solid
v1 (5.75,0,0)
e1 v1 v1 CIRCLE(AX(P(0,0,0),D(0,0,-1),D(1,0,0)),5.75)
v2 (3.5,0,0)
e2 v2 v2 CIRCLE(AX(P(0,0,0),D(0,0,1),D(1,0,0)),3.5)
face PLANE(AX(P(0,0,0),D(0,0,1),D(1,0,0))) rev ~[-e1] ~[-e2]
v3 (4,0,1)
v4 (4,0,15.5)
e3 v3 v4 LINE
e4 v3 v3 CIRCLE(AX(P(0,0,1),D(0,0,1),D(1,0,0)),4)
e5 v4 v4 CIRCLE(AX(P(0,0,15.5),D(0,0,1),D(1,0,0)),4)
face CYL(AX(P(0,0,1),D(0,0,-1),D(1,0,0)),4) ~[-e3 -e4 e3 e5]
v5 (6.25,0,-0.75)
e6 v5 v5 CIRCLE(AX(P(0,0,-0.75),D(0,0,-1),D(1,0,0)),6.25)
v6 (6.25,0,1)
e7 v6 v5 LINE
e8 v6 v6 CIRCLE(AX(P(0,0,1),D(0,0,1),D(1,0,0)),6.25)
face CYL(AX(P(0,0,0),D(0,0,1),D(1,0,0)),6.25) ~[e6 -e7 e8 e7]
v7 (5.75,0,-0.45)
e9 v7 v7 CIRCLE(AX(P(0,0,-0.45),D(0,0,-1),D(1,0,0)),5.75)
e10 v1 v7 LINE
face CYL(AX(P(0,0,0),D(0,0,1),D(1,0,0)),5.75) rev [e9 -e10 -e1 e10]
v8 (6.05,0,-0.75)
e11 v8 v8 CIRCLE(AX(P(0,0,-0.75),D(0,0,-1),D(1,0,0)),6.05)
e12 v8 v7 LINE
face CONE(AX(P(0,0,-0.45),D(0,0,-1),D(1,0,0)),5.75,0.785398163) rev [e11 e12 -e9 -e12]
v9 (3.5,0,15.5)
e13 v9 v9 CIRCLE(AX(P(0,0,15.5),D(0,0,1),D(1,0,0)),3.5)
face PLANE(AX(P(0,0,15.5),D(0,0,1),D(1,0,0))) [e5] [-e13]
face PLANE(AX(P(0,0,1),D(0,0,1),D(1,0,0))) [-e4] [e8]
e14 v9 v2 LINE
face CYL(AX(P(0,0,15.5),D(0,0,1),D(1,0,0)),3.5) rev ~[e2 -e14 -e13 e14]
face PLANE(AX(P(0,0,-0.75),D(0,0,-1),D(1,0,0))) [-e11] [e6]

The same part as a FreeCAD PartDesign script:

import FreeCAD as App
import Part
import Sketcher

V = App.Vector
Q = App.Units.Quantity


def edges_at(feature, points):
    """Names of the edges that pass closest to the given points."""
    edges = feature.Shape.Edges
    near = lambda p: min(range(len(edges)), key=lambda i: edges[i].distToShape(Part.Vertex(*p))[0])
    return sorted({f"Edge{near(p) + 1}" for p in points})

doc = App.newDocument("Part")
body = doc.addObject("PartDesign::Body", "Body")

# Sketch on XY plane
sketch1 = doc.addObject("Sketcher::SketchObject", "Sketch")
body.addObject(sketch1)
sketch1.AttachmentSupport = (doc.XY_Plane, [""])
sketch1.MapMode = "FlatFace"
sketch1.addGeometry(Part.Circle(V(0, 0, 0), V(0, 0, 1), 6), False)
sketch1.addConstraint([
    Sketcher.Constraint("Coincident", 0, 3, -1, 1),
    Sketcher.Constraint("Diameter", 0, Q("12.5 mm")),
])
pad1 = doc.addObject("PartDesign::Pad", "Pad")
body.addObject(pad1)
pad1.Profile = sketch1
pad1.Length = 1

# Sketch on XY plane
sketch2 = doc.addObject("Sketcher::SketchObject", "Sketch001")
body.addObject(sketch2)
sketch2.AttachmentSupport = (doc.XY_Plane, [""])
sketch2.MapMode = "FlatFace"
sketch2.addGeometry([
    Part.Circle(V(0, 0, 0), V(0, 0, 1), 6),
    Part.Circle(V(0, 0, 0), V(0, 0, 1), 6),
], False)
sketch2.addConstraint([
    Sketcher.Constraint("Coincident", 0, 3, -1, 1),
    Sketcher.Constraint("Coincident", 1, 3, -1, 1),
    Sketcher.Constraint("Diameter", 0, Q("12.5 mm")),
    Sketcher.Constraint("Diameter", 1, Q("11.5 mm")),
])
pad2 = doc.addObject("PartDesign::Pad", "Pad001")
body.addObject(pad2)
pad2.Profile = sketch2
pad2.Length = 0.75
pad2.Reversed = True

# Sketch on XY plane
sketch3 = doc.addObject("Sketcher::SketchObject", "Sketch002")
body.addObject(sketch3)
sketch3.AttachmentSupport = (doc.XY_Plane, [""])
sketch3.MapMode = "FlatFace"
sketch3.AttachmentOffset = App.Placement(V(0, 0, 1), App.Rotation())
sketch3.addGeometry(Part.Circle(V(0, 0, 0), V(0, 0, 1), 4), False)
sketch3.addConstraint([
    Sketcher.Constraint("Coincident", 0, 3, -1, 1),
    Sketcher.Constraint("Diameter", 0, Q("8 mm")),
])
pad3 = doc.addObject("PartDesign::Pad", "Pad002")
body.addObject(pad3)
pad3.Profile = sketch3
pad3.Length = 14.5

# Sketch on XY plane
sketch4 = doc.addObject("Sketcher::SketchObject", "Sketch003")
body.addObject(sketch4)
sketch4.AttachmentSupport = (doc.XY_Plane, [""])
sketch4.MapMode = "FlatFace"
sketch4.AttachmentOffset = App.Placement(V(0, 0, 15.5), App.Rotation())
sketch4.addGeometry(Part.Circle(V(0, 0, 0), V(0, 0, 1), 3.5), False)
sketch4.addConstraint([
    Sketcher.Constraint("Coincident", 0, 3, -1, 1),
    Sketcher.Constraint("Diameter", 0, Q("7 mm")),
])
pocket1 = doc.addObject("PartDesign::Pocket", "Pocket")
body.addObject(pocket1)
pocket1.Profile = sketch4
pocket1.Length = 25
doc.recompute()

chamfer = doc.addObject("PartDesign::Chamfer", "Chamfer")
body.addObject(chamfer)
chamfer.Base = (pocket1, edges_at(pocket1, [(-5.75, 0, -0.75)]))
chamfer.Size = 0.3

doc.recompute()
